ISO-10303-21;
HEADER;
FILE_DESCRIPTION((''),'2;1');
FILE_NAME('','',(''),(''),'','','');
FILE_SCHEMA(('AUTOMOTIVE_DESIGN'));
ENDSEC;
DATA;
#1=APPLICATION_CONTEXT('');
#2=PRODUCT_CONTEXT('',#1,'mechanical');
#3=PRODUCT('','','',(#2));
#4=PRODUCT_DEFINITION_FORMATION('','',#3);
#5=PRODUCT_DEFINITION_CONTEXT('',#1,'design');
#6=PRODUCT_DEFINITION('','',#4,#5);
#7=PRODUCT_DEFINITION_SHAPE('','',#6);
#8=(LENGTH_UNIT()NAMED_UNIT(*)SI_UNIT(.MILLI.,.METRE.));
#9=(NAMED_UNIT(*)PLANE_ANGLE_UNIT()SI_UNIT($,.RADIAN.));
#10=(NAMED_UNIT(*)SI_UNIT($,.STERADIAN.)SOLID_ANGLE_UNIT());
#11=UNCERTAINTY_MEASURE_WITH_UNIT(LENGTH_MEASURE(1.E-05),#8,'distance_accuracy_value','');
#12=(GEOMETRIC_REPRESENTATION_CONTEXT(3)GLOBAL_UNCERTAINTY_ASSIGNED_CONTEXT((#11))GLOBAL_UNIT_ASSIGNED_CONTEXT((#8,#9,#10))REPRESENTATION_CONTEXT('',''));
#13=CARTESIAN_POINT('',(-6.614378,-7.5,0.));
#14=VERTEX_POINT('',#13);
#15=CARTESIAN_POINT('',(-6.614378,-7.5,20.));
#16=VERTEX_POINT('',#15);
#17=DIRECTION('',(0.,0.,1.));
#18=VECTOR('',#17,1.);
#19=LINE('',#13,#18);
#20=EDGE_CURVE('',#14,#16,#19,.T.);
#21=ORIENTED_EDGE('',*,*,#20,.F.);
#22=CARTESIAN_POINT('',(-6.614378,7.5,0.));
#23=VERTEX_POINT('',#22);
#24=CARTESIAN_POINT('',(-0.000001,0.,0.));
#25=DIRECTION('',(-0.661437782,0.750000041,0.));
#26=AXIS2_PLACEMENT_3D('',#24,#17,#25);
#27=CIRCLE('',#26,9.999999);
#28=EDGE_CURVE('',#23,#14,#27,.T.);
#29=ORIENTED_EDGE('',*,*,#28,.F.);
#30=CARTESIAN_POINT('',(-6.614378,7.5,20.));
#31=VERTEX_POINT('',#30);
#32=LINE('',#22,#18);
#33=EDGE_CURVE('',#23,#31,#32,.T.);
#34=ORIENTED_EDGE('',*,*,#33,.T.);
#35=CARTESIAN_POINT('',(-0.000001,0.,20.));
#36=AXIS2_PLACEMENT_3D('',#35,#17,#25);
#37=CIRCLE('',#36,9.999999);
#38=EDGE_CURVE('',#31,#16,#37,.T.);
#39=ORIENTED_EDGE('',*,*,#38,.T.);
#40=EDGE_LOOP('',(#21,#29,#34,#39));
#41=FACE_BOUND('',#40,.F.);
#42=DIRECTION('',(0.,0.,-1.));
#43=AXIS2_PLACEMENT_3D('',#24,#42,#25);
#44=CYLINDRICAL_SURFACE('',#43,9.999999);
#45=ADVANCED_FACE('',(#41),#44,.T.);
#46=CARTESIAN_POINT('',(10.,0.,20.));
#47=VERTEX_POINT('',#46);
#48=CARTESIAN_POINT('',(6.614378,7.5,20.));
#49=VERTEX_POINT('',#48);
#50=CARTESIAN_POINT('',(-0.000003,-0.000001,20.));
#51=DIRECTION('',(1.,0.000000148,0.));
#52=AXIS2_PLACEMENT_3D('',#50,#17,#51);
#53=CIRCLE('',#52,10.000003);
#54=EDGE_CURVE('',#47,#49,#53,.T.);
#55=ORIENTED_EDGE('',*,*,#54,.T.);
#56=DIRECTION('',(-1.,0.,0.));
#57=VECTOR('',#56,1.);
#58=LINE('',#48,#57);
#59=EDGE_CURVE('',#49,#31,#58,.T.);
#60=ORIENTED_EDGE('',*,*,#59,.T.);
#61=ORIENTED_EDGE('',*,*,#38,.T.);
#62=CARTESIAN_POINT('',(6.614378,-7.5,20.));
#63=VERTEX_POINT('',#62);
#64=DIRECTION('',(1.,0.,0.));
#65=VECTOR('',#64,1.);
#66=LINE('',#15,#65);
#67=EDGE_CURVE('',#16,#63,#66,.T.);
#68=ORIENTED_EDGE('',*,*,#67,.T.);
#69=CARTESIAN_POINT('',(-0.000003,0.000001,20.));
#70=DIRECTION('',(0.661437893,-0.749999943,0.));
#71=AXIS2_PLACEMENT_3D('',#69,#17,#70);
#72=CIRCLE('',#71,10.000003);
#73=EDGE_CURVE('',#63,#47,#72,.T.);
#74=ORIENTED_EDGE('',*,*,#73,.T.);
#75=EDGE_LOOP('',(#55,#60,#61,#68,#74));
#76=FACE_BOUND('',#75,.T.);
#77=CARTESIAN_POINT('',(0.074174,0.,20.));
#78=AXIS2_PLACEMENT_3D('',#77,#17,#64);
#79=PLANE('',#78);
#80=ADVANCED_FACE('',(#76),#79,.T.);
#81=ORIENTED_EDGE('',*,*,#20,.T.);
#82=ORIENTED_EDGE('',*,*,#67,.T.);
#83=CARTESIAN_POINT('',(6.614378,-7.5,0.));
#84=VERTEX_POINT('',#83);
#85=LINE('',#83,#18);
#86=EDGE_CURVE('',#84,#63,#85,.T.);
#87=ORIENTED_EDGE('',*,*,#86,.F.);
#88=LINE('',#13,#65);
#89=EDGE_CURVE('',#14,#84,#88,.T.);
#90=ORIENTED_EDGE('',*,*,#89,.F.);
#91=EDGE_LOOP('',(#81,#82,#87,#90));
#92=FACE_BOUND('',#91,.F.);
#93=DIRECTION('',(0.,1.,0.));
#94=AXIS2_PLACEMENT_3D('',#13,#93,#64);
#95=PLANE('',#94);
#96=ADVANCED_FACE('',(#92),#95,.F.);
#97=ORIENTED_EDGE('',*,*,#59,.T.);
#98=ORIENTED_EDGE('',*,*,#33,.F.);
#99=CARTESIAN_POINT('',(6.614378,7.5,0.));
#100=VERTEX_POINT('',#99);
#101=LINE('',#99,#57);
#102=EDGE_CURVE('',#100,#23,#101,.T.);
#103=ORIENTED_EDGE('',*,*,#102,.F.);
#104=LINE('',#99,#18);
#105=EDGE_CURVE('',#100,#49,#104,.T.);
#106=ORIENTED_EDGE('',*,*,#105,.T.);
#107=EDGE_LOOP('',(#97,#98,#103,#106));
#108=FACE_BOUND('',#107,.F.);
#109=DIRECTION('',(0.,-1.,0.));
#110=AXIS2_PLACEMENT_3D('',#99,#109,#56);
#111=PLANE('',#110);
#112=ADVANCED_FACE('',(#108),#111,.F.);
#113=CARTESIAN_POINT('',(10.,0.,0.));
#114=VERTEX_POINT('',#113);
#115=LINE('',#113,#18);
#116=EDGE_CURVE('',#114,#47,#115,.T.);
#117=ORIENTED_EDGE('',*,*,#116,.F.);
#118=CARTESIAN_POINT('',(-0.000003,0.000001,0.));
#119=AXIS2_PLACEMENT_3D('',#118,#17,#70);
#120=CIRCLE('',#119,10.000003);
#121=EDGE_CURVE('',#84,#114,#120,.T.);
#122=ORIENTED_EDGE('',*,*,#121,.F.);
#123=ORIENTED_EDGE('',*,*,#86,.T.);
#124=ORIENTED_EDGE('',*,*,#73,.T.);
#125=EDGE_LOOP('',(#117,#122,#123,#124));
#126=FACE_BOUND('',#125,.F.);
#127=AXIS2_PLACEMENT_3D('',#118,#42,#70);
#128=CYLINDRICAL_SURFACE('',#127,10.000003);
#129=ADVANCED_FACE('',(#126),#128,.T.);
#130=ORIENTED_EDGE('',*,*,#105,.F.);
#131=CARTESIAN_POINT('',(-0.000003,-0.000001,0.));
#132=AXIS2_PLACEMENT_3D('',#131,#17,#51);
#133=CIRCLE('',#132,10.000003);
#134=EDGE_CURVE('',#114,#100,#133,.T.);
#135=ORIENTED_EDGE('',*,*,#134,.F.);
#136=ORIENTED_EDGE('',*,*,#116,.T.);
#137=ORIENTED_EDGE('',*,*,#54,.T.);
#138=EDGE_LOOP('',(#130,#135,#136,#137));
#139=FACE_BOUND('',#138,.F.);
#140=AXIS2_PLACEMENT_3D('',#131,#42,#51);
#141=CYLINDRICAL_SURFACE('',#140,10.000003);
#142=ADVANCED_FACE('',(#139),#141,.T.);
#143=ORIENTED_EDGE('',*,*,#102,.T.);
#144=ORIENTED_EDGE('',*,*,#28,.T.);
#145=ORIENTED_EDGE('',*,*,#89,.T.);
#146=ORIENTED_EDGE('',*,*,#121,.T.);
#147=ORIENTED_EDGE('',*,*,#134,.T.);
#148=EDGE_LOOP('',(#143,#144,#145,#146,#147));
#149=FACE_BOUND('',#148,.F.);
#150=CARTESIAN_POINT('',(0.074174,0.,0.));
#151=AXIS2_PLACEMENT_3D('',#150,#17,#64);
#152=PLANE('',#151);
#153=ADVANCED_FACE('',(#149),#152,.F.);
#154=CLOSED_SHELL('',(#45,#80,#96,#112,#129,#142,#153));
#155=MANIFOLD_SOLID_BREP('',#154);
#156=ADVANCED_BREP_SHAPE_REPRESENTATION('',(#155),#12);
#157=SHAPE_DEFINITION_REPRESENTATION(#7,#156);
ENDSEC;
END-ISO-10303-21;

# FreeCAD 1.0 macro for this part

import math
import FreeCAD as App
import Part
import Sketcher

V = App.Vector

doc = App.newDocument("Part")
params = doc.addObject("Spreadsheet::Sheet", "Params")
for row, (alias, value) in enumerate([
    ("sketch1_radius", "9.999999 mm"),
    ("pad1_length", "20 mm"),
], start=1):
    params.set(f"A{row}", alias)
    params.set(f"B{row}", "=" + value)
    params.setAlias(f"B{row}", alias)

body = doc.addObject("PartDesign::Body", "Body")

# Sketch on XY plane
sketch1 = doc.addObject("Sketcher::SketchObject", "Sketch")
body.addObject(sketch1)
sketch1.AttachmentSupport = (doc.XY_Plane, [""])
sketch1.MapMode = "FlatFace"
sketch1.addGeometry(Part.ArcOfCircle(Part.Circle(V(-0.000003, 0.000001, 0), V(0, 0, 1), 10.000003), math.radians(-48.590373), math.radians(-0.000008)), False)
sketch1.addGeometry(Part.ArcOfCircle(Part.Circle(V(-0.000003, -0.000001, 0), V(0, 0, 1), 10.000003), math.radians(0.000008), math.radians(48.590373)), False)
sketch1.addGeometry(Part.LineSegment(V(6.614378, 7.5, 0), V(-6.614378, 7.5, 0)), False)
sketch1.addGeometry(Part.ArcOfCircle(Part.Circle(V(-0.000001, 0, 0), V(0, 0, 1), 9.999999), math.radians(131.409619), math.radians(228.590381)), False)
sketch1.addGeometry(Part.LineSegment(V(-6.614378, -7.5, 0), V(6.614378, -7.5, 0)), False)
sketch1.addConstraint(Sketcher.Constraint("Tangent", 0, 2, 1, 1))
sketch1.addConstraint(Sketcher.Constraint("Coincident", 1, 2, 2, 1))
sketch1.addConstraint(Sketcher.Constraint("Coincident", 2, 2, 3, 1))
sketch1.addConstraint(Sketcher.Constraint("Coincident", 3, 2, 4, 1))
sketch1.addConstraint(Sketcher.Constraint("Coincident", 4, 2, 0, 1))
sketch1.addConstraint(Sketcher.Constraint("Horizontal", 2))
sketch1.addConstraint(Sketcher.Constraint("Horizontal", 4))
sketch1.addConstraint(Sketcher.Constraint("Coincident", 0, 3, -1, 1))
sketch1.addConstraint(Sketcher.Constraint("Coincident", 3, 3, -1, 1))
sketch1.addConstraint(Sketcher.Constraint("Equal", 0, 1))
sketch1.addConstraint(Sketcher.Constraint("Symmetric", 1, 2, 3, 2, -1, 1))
sketch1.addConstraint(Sketcher.Constraint("PointOnObject", 0, 2, -1))
sketch1.addConstraint(Sketcher.Constraint("Radius", 3, 9.999999))
sketch1.addConstraint(Sketcher.Constraint("DistanceY", 3, 2, 2, 2, 15.0))
sketch1.setExpression("Constraints[12]", "Params.sketch1_radius")
pad1 = doc.addObject("PartDesign::Pad", "Pad")
body.addObject(pad1)
pad1.Profile = sketch1
pad1.setExpression("Length", "Params.pad1_length")

doc.recompute()
